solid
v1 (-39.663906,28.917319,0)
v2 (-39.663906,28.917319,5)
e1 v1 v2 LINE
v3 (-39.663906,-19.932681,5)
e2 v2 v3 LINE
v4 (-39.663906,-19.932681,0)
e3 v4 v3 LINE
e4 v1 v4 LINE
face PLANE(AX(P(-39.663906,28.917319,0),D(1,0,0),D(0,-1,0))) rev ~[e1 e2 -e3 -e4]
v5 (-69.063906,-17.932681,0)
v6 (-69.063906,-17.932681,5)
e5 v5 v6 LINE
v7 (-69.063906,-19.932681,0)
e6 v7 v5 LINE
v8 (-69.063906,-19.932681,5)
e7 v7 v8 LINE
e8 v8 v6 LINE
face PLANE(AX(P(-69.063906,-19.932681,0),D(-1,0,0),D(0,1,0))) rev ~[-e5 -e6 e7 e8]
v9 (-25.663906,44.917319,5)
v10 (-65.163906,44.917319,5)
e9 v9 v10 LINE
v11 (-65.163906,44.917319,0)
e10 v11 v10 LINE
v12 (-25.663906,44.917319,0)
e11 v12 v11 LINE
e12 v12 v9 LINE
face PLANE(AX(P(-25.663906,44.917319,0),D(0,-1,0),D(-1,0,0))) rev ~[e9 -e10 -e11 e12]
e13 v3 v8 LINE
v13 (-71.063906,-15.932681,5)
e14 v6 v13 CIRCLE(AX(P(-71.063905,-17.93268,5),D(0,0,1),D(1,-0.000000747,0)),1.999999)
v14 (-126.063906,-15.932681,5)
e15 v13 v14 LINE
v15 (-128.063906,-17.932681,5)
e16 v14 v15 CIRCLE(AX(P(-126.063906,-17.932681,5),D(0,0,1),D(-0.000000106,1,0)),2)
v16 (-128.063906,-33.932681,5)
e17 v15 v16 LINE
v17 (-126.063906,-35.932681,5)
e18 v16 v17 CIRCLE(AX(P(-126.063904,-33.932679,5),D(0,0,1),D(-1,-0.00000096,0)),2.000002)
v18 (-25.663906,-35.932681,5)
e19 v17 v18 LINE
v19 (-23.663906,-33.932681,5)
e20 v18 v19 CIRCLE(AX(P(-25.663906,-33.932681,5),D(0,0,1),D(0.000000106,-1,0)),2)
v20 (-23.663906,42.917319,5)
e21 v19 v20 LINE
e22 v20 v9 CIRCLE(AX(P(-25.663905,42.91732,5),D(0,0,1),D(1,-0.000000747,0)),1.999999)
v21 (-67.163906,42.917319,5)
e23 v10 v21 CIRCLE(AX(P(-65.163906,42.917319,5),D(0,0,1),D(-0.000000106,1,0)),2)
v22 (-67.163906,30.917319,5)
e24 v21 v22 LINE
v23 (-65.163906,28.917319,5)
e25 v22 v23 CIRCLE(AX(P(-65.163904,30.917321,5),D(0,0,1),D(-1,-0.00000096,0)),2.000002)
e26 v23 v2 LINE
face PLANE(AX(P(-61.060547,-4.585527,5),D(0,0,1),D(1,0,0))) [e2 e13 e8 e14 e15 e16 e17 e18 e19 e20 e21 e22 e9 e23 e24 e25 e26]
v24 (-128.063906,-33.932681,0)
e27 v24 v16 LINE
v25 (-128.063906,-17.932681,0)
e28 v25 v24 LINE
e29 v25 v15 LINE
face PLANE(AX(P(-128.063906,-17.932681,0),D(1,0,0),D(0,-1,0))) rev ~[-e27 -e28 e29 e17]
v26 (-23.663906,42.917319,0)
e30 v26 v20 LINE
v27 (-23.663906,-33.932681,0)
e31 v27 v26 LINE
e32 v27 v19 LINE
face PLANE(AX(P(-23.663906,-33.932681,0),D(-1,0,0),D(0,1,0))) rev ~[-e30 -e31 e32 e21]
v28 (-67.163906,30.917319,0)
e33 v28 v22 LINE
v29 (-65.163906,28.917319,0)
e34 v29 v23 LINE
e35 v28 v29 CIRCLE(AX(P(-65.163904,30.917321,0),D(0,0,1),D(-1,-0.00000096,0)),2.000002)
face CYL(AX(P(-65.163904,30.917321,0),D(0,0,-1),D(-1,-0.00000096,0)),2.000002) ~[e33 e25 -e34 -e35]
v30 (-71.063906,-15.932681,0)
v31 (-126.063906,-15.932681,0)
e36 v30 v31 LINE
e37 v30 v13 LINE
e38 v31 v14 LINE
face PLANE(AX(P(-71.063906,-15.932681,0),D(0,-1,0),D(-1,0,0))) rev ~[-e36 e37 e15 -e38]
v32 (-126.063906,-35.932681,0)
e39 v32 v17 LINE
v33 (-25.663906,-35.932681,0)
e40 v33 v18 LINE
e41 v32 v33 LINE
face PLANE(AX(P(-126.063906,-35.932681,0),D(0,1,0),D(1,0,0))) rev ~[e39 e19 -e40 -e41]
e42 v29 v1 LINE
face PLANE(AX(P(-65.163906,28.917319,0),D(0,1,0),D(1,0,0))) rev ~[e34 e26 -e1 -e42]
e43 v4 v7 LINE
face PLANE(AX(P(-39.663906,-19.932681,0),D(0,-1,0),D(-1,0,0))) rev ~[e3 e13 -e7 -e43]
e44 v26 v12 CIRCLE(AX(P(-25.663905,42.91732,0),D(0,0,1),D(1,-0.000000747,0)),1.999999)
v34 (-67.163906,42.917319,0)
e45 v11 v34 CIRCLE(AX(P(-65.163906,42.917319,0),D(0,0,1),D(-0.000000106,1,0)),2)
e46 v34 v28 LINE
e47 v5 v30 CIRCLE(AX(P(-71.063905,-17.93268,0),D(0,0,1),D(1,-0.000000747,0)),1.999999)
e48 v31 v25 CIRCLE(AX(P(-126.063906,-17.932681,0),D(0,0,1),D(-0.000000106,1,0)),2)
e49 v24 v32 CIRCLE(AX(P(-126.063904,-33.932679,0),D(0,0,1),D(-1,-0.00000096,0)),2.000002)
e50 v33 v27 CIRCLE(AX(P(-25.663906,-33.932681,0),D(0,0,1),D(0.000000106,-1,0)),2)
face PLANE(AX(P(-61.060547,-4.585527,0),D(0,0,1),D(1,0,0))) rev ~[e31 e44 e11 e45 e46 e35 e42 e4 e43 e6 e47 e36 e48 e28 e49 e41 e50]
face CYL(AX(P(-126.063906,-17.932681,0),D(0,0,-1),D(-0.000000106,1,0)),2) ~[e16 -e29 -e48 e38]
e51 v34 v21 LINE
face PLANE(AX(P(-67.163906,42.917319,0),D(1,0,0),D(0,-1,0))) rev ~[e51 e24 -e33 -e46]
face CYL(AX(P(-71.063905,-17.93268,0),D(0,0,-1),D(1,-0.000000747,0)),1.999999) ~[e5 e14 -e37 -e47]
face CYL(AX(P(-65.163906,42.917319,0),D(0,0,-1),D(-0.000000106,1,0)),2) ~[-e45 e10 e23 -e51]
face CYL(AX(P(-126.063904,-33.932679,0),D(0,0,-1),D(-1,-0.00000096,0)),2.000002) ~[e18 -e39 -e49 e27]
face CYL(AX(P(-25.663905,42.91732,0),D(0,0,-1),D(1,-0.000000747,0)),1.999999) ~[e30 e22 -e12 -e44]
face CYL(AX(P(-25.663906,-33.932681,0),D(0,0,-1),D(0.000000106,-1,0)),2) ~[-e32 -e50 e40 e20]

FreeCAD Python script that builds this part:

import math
import FreeCAD as App
import Part
import Sketcher

doc = App.newDocument("Part")
body = doc.addObject("PartDesign::Body", "Body")

sketch1 = body.newObject("Sketcher::SketchObject", "Sketch")
sketch1.AttachmentSupport = (doc.getObject("XY_Plane"), [""])
sketch1.MapMode = "FlatFace"
sketch1.addGeometry(Part.ArcOfCircle(Part.Circle(App.Vector(-65.163904, 30.917321, 0), App.Vector(0, 0, 1), 2.000002), math.radians(-179.999945), math.radians(-90.000055)), False)
sketch1.addGeometry(Part.LineSegment(App.Vector(-65.163906, 28.917319, 0), App.Vector(-39.663906, 28.917319, 0)), False)
sketch1.addGeometry(Part.LineSegment(App.Vector(-39.663906, 28.917319, 0), App.Vector(-39.663906, -19.932681, 0)), False)
sketch1.addGeometry(Part.LineSegment(App.Vector(-39.663906, -19.932681, 0), App.Vector(-69.063906, -19.932681, 0)), False)
sketch1.addGeometry(Part.LineSegment(App.Vector(-69.063906, -19.932681, 0), App.Vector(-69.063906, -17.932681, 0)), False)
sketch1.addGeometry(Part.ArcOfCircle(Part.Circle(App.Vector(-71.063905, -17.93268, 0), App.Vector(0, 0, 1), 1.999999), math.radians(-0.000043), math.radians(90.000043)), False)
sketch1.addGeometry(Part.LineSegment(App.Vector(-71.063906, -15.932681, 0), App.Vector(-126.063906, -15.932681, 0)), False)
sketch1.addGeometry(Part.ArcOfCircle(Part.Circle(App.Vector(-126.063906, -17.932681, 0), App.Vector(0, 0, 1), 2), math.radians(90.000006), math.radians(179.999994)), False)
sketch1.addGeometry(Part.LineSegment(App.Vector(-128.063906, -17.932681, 0), App.Vector(-128.063906, -33.932681, 0)), False)
sketch1.addGeometry(Part.ArcOfCircle(Part.Circle(App.Vector(-126.063904, -33.932679, 0), App.Vector(0, 0, 1), 2.000002), math.radians(-179.999945), math.radians(-90.000055)), False)
sketch1.addGeometry(Part.LineSegment(App.Vector(-126.063906, -35.932681, 0), App.Vector(-25.663906, -35.932681, 0)), False)
sketch1.addGeometry(Part.ArcOfCircle(Part.Circle(App.Vector(-25.663906, -33.932681, 0), App.Vector(0, 0, 1), 2), math.radians(-89.999994), math.radians(-0.000006)), False)
sketch1.addGeometry(Part.LineSegment(App.Vector(-23.663906, -33.932681, 0), App.Vector(-23.663906, 42.917319, 0)), False)
sketch1.addGeometry(Part.ArcOfCircle(Part.Circle(App.Vector(-25.663905, 42.91732, 0), App.Vector(0, 0, 1), 1.999999), math.radians(-0.000043), math.radians(90.000043)), False)
sketch1.addGeometry(Part.LineSegment(App.Vector(-25.663906, 44.917319, 0), App.Vector(-65.163906, 44.917319, 0)), False)
sketch1.addGeometry(Part.ArcOfCircle(Part.Circle(App.Vector(-65.163906, 42.917319, 0), App.Vector(0, 0, 1), 2), math.radians(90.000006), math.radians(179.999994)), False)
sketch1.addGeometry(Part.LineSegment(App.Vector(-67.163906, 42.917319, 0), App.Vector(-67.163906, 30.917319, 0)), False)
sketch1.addConstraint(Sketcher.Constraint("Tangent", 0, 2, 1, 1))
sketch1.addConstraint(Sketcher.Constraint("Coincident", 1, 2, 2, 1))
sketch1.addConstraint(Sketcher.Constraint("Coincident", 2, 2, 3, 1))
sketch1.addConstraint(Sketcher.Constraint("Coincident", 3, 2, 4, 1))
sketch1.addConstraint(Sketcher.Constraint("Tangent", 4, 2, 5, 1))
sketch1.addConstraint(Sketcher.Constraint("Tangent", 5, 2, 6, 1))
sketch1.addConstraint(Sketcher.Constraint("Tangent", 6, 2, 7, 1))
sketch1.addConstraint(Sketcher.Constraint("Tangent", 7, 2, 8, 1))
sketch1.addConstraint(Sketcher.Constraint("Tangent", 8, 2, 9, 1))
sketch1.addConstraint(Sketcher.Constraint("Tangent", 9, 2, 10, 1))
sketch1.addConstraint(Sketcher.Constraint("Tangent", 10, 2, 11, 1))
sketch1.addConstraint(Sketcher.Constraint("Tangent", 11, 2, 12, 1))
sketch1.addConstraint(Sketcher.Constraint("Tangent", 12, 2, 13, 1))
sketch1.addConstraint(Sketcher.Constraint("Tangent", 13, 2, 14, 1))
sketch1.addConstraint(Sketcher.Constraint("Tangent", 14, 2, 15, 1))
sketch1.addConstraint(Sketcher.Constraint("Tangent", 15, 2, 16, 1))
sketch1.addConstraint(Sketcher.Constraint("Tangent", 16, 2, 0, 1))
sketch1.addConstraint(Sketcher.Constraint("Horizontal", 1))
sketch1.addConstraint(Sketcher.Constraint("Vertical", 2))
sketch1.addConstraint(Sketcher.Constraint("Horizontal", 3))
sketch1.addConstraint(Sketcher.Constraint("Vertical", 4))
sketch1.addConstraint(Sketcher.Constraint("Horizontal", 6))
sketch1.addConstraint(Sketcher.Constraint("Vertical", 8))
sketch1.addConstraint(Sketcher.Constraint("Horizontal", 10))
sketch1.addConstraint(Sketcher.Constraint("Vertical", 12))
sketch1.addConstraint(Sketcher.Constraint("Horizontal", 14))
sketch1.addConstraint(Sketcher.Constraint("Vertical", 16))
sketch1.addConstraint(Sketcher.Constraint("Equal", 5, 7))
sketch1.addConstraint(Sketcher.Constraint("Equal", 7, 9))
sketch1.addConstraint(Sketcher.Constraint("Equal", 9, 11))
sketch1.addConstraint(Sketcher.Constraint("Equal", 11, 13))
sketch1.addConstraint(Sketcher.Constraint("Equal", 13, 15))
sketch1.addConstraint(Sketcher.Constraint("Vertical", 0, 3, 15, 3))
sketch1.addConstraint(Sketcher.Constraint("Radius", 0, 2.000002))
sketch1.addConstraint(Sketcher.Constraint("DistanceX", 6, 2, 6, 1, 55.0))
sketch1.addConstraint(Sketcher.Constraint("DistanceY", 4, 1, 4, 2, 2.0))
sketch1.addConstraint(Sketcher.Constraint("DistanceY", 8, 2, 8, 1, 16.0))
sketch1.addConstraint(Sketcher.Constraint("DistanceY", 16, 2, 16, 1, 12.0))
sketch1.addConstraint(Sketcher.Constraint("DistanceX", 1, 1, 1, 2, 25.5))
sketch1.addConstraint(Sketcher.Constraint("DistanceX", 3, 2, 3, 1, 29.4))
sketch1.addConstraint(Sketcher.Constraint("DistanceX", 10, 1, 10, 2, 100.4))
sketch1.addConstraint(Sketcher.Constraint("DistanceY", 2, 2, 2, 1, 48.85))
sketch1.addConstraint(Sketcher.Constraint("DistanceY", -1, 1, 0, 3, 30.917321))
sketch1.addConstraint(Sketcher.Constraint("DistanceX", 0, 3, -1, 1, 65.163904))
pad1 = body.newObject("PartDesign::Pad", "Pad")
pad1.Profile = sketch1
pad1.Length = 5

doc.recompute()
